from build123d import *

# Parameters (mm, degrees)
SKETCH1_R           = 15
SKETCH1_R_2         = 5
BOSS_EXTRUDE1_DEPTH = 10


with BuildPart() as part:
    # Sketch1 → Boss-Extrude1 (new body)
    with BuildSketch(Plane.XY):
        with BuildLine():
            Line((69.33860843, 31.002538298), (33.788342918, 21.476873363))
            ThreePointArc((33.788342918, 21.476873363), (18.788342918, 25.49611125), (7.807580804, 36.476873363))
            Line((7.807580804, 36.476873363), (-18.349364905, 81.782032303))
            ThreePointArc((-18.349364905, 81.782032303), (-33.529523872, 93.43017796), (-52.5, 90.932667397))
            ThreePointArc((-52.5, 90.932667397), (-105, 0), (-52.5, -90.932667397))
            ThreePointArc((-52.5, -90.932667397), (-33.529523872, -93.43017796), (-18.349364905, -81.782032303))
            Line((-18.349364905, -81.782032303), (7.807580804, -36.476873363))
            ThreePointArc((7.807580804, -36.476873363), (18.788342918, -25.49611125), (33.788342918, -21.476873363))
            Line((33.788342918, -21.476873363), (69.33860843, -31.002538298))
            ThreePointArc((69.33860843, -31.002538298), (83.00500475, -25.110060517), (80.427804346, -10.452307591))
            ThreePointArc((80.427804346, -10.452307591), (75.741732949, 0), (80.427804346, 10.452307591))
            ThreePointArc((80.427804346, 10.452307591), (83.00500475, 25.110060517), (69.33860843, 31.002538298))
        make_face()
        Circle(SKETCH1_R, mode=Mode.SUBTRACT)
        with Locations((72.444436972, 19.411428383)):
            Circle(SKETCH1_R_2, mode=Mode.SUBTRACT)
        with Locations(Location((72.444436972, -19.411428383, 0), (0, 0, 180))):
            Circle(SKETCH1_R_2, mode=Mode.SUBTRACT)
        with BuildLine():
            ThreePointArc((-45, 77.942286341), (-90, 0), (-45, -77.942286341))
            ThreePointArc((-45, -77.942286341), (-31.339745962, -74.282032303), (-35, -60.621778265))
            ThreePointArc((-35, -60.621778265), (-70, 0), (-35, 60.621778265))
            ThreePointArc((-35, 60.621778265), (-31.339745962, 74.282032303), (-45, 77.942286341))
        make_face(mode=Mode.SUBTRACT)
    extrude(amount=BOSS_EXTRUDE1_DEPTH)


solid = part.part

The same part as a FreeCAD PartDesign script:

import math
import FreeCAD as App
import Part
import Sketcher
Q = App.Units.Quantity

doc = App.newDocument("Part")
body = doc.addObject("PartDesign::Body", "Body")

sketch1 = body.newObject("Sketcher::SketchObject", "Sketch")
sketch1.AttachmentSupport = (doc.getObject("XY_Plane"), [""])
sketch1.MapMode = "FlatFace"
sketch1.addGeometry(Part.LineSegment(App.Vector(69, 31, 0), App.Vector(34, 21, 0)), False)
sketch1.addGeometry(Part.ArcOfCircle(Part.Circle(App.Vector(34, 51, 0), App.Vector(0, 0, 1), 30), math.radians(-150), math.radians(-90)), False)
sketch1.addGeometry(Part.LineSegment(App.Vector(8, 36, 0), App.Vector(-18, 82, 0)), False)
sketch1.addGeometry(Part.ArcOfCircle(Part.Circle(App.Vector(-40, 69, 0), App.Vector(0, 0, 1), 25), math.radians(30), math.radians(120)), False)
sketch1.addGeometry(Part.ArcOfCircle(Part.Circle(App.Vector(0, 0, 0), App.Vector(0, 0, 1), 105), math.radians(120), math.radians(240)), False)
sketch1.addGeometry(Part.ArcOfCircle(Part.Circle(App.Vector(-40, -69, 0), App.Vector(0, 0, 1), 25), math.radians(-120), math.radians(-30)), False)
sketch1.addGeometry(Part.LineSegment(App.Vector(-18, -82, 0), App.Vector(8, -36, 0)), False)
sketch1.addGeometry(Part.ArcOfCircle(Part.Circle(App.Vector(34, -51, 0), App.Vector(0, 0, 1), 30), math.radians(90), math.radians(150)), False)
sketch1.addGeometry(Part.LineSegment(App.Vector(34, -21, 0), App.Vector(69, -31, 0)), False)
sketch1.addGeometry(Part.ArcOfCircle(Part.Circle(App.Vector(72, -19, 0), App.Vector(0, 0, 1), 12), math.radians(-105), math.radians(48)), False)
sketch1.addGeometry(Part.ArcOfCircle(Part.Circle(App.Vector(90, 0, 0), App.Vector(0, 0, 1), 14), math.radians(132), math.radians(228)), False)
sketch1.addGeometry(Part.ArcOfCircle(Part.Circle(App.Vector(72, 19, 0), App.Vector(0, 0, 1), 12), math.radians(-48), math.radians(105)), False)
sketch1.addGeometry(Part.Circle(App.Vector(72, -19, 0), App.Vector(0, 0, 1), 5), False)
sketch1.addGeometry(Part.ArcOfCircle(Part.Circle(App.Vector(0, 0, 0), App.Vector(0, 0, 1), 90), math.radians(120), math.radians(240)), False)
sketch1.addGeometry(Part.ArcOfCircle(Part.Circle(App.Vector(-40, 69, 0), App.Vector(0, 0, 1), 10), math.radians(-60), math.radians(120)), False)
sketch1.addGeometry(Part.ArcOfCircle(Part.Circle(App.Vector(0, 0, 0), App.Vector(0, 0, 1), 70), math.radians(120), math.radians(240)), False)
sketch1.addGeometry(Part.ArcOfCircle(Part.Circle(App.Vector(-40, -69, 0), App.Vector(0, 0, 1), 10), math.radians(-120), math.radians(60)), False)
sketch1.addGeometry(Part.Circle(App.Vector(0, 0, 0), App.Vector(0, 0, 1), 15), False)
sketch1.addGeometry(Part.Circle(App.Vector(72, 19, 0), App.Vector(0, 0, 1), 5), False)
sketch1.addConstraint(Sketcher.Constraint("Coincident", 0, 2, 1, 2))
sketch1.addConstraint(Sketcher.Constraint("Tangent", 1, 1, 2, 1))
sketch1.addConstraint(Sketcher.Constraint("Tangent", 2, 2, 3, 1))
sketch1.addConstraint(Sketcher.Constraint("Tangent", 3, 2, 4, 1))
sketch1.addConstraint(Sketcher.Constraint("Tangent", 4, 2, 5, 1))
sketch1.addConstraint(Sketcher.Constraint("Tangent", 5, 2, 6, 1))
sketch1.addConstraint(Sketcher.Constraint("Tangent", 6, 2, 7, 2))
sketch1.addConstraint(Sketcher.Constraint("Coincident", 7, 1, 8, 1))
sketch1.addConstraint(Sketcher.Constraint("Tangent", 8, 2, 9, 1))
sketch1.addConstraint(Sketcher.Constraint("Tangent", 9, 2, 10, 2))
sketch1.addConstraint(Sketcher.Constraint("Tangent", 10, 1, 11, 1))
sketch1.addConstraint(Sketcher.Constraint("Tangent", 11, 2, 0, 1))
sketch1.addConstraint(Sketcher.Constraint("Tangent", 13, 1, 14, 2))
sketch1.addConstraint(Sketcher.Constraint("Tangent", 14, 1, 15, 1))
sketch1.addConstraint(Sketcher.Constraint("Tangent", 15, 2, 16, 2))
sketch1.addConstraint(Sketcher.Constraint("Tangent", 16, 1, 13, 2))
sketch1.addConstraint(Sketcher.Constraint("Coincident", 4, 3, -1, 1))
sketch1.addConstraint(Sketcher.Constraint("Coincident", 13, 3, -1, 1))
sketch1.addConstraint(Sketcher.Constraint("Coincident", 15, 3, -1, 1))
sketch1.addConstraint(Sketcher.Constraint("Coincident", 17, 3, -1, 1))
sketch1.addConstraint(Sketcher.Constraint("Coincident", 12, 3, 9, 3))
sketch1.addConstraint(Sketcher.Constraint("Coincident", 14, 3, 3, 3))
sketch1.addConstraint(Sketcher.Constraint("Coincident", 16, 3, 5, 3))
sketch1.addConstraint(Sketcher.Constraint("Coincident", 18, 3, 11, 3))
sketch1.addConstraint(Sketcher.Constraint("Equal", 1, 7))
sketch1.addConstraint(Sketcher.Constraint("Equal", 9, 11))
sketch1.addConstraint(Sketcher.Constraint("Equal", 12, 18))
sketch1.addConstraint(Sketcher.Constraint("Symmetric", 1, 3, 7, 3, -1))
sketch1.addConstraint(Sketcher.Constraint("Symmetric", 9, 3, 11, 3, -1))
sketch1.addConstraint(Sketcher.Constraint("Vertical", 3, 3, 5, 3))
sketch1.addConstraint(Sketcher.Constraint("Vertical", 7, 3, 0, 2))
sketch1.addConstraint(Sketcher.Constraint("Vertical", 0, 2, 7, 1))
sketch1.addConstraint(Sketcher.Constraint("Diameter", 12, Q("10 mm")))
sketch1.addConstraint(Sketcher.Constraint("Diameter", 17, Q("30 mm")))
sketch1.addConstraint(Sketcher.Constraint("Radius", 1, Q("30 mm")))
sketch1.addConstraint(Sketcher.Constraint("Radius", 3, Q("25 mm")))
sketch1.addConstraint(Sketcher.Constraint("Radius", 4, Q("105 mm")))
sketch1.addConstraint(Sketcher.Constraint("Radius", 9, Q("12 mm")))
sketch1.addConstraint(Sketcher.Constraint("Radius", 10, Q("14 mm")))
sketch1.addConstraint(Sketcher.Constraint("Radius", 13, Q("90 mm")))
sketch1.addConstraint(Sketcher.Constraint("Angle", 0, Q("-165 deg")))
sketch1.addConstraint(Sketcher.Constraint("Angle", 2, Q("120 deg")))
sketch1.addConstraint(Sketcher.Constraint("DistanceX", 3, 3, -1, 1, Q("40 mm")))
sketch1.addConstraint(Sketcher.Constraint("DistanceY", 9, 3, 1, 3, Q("70.888302 mm")))
sketch1.addConstraint(Sketcher.Constraint("Distance", 2, Q("52.313891 mm")))
pad1 = body.newObject("PartDesign::Pad", "Pad")
pad1.Profile = sketch1
pad1.Length = 10

doc.recompute()
